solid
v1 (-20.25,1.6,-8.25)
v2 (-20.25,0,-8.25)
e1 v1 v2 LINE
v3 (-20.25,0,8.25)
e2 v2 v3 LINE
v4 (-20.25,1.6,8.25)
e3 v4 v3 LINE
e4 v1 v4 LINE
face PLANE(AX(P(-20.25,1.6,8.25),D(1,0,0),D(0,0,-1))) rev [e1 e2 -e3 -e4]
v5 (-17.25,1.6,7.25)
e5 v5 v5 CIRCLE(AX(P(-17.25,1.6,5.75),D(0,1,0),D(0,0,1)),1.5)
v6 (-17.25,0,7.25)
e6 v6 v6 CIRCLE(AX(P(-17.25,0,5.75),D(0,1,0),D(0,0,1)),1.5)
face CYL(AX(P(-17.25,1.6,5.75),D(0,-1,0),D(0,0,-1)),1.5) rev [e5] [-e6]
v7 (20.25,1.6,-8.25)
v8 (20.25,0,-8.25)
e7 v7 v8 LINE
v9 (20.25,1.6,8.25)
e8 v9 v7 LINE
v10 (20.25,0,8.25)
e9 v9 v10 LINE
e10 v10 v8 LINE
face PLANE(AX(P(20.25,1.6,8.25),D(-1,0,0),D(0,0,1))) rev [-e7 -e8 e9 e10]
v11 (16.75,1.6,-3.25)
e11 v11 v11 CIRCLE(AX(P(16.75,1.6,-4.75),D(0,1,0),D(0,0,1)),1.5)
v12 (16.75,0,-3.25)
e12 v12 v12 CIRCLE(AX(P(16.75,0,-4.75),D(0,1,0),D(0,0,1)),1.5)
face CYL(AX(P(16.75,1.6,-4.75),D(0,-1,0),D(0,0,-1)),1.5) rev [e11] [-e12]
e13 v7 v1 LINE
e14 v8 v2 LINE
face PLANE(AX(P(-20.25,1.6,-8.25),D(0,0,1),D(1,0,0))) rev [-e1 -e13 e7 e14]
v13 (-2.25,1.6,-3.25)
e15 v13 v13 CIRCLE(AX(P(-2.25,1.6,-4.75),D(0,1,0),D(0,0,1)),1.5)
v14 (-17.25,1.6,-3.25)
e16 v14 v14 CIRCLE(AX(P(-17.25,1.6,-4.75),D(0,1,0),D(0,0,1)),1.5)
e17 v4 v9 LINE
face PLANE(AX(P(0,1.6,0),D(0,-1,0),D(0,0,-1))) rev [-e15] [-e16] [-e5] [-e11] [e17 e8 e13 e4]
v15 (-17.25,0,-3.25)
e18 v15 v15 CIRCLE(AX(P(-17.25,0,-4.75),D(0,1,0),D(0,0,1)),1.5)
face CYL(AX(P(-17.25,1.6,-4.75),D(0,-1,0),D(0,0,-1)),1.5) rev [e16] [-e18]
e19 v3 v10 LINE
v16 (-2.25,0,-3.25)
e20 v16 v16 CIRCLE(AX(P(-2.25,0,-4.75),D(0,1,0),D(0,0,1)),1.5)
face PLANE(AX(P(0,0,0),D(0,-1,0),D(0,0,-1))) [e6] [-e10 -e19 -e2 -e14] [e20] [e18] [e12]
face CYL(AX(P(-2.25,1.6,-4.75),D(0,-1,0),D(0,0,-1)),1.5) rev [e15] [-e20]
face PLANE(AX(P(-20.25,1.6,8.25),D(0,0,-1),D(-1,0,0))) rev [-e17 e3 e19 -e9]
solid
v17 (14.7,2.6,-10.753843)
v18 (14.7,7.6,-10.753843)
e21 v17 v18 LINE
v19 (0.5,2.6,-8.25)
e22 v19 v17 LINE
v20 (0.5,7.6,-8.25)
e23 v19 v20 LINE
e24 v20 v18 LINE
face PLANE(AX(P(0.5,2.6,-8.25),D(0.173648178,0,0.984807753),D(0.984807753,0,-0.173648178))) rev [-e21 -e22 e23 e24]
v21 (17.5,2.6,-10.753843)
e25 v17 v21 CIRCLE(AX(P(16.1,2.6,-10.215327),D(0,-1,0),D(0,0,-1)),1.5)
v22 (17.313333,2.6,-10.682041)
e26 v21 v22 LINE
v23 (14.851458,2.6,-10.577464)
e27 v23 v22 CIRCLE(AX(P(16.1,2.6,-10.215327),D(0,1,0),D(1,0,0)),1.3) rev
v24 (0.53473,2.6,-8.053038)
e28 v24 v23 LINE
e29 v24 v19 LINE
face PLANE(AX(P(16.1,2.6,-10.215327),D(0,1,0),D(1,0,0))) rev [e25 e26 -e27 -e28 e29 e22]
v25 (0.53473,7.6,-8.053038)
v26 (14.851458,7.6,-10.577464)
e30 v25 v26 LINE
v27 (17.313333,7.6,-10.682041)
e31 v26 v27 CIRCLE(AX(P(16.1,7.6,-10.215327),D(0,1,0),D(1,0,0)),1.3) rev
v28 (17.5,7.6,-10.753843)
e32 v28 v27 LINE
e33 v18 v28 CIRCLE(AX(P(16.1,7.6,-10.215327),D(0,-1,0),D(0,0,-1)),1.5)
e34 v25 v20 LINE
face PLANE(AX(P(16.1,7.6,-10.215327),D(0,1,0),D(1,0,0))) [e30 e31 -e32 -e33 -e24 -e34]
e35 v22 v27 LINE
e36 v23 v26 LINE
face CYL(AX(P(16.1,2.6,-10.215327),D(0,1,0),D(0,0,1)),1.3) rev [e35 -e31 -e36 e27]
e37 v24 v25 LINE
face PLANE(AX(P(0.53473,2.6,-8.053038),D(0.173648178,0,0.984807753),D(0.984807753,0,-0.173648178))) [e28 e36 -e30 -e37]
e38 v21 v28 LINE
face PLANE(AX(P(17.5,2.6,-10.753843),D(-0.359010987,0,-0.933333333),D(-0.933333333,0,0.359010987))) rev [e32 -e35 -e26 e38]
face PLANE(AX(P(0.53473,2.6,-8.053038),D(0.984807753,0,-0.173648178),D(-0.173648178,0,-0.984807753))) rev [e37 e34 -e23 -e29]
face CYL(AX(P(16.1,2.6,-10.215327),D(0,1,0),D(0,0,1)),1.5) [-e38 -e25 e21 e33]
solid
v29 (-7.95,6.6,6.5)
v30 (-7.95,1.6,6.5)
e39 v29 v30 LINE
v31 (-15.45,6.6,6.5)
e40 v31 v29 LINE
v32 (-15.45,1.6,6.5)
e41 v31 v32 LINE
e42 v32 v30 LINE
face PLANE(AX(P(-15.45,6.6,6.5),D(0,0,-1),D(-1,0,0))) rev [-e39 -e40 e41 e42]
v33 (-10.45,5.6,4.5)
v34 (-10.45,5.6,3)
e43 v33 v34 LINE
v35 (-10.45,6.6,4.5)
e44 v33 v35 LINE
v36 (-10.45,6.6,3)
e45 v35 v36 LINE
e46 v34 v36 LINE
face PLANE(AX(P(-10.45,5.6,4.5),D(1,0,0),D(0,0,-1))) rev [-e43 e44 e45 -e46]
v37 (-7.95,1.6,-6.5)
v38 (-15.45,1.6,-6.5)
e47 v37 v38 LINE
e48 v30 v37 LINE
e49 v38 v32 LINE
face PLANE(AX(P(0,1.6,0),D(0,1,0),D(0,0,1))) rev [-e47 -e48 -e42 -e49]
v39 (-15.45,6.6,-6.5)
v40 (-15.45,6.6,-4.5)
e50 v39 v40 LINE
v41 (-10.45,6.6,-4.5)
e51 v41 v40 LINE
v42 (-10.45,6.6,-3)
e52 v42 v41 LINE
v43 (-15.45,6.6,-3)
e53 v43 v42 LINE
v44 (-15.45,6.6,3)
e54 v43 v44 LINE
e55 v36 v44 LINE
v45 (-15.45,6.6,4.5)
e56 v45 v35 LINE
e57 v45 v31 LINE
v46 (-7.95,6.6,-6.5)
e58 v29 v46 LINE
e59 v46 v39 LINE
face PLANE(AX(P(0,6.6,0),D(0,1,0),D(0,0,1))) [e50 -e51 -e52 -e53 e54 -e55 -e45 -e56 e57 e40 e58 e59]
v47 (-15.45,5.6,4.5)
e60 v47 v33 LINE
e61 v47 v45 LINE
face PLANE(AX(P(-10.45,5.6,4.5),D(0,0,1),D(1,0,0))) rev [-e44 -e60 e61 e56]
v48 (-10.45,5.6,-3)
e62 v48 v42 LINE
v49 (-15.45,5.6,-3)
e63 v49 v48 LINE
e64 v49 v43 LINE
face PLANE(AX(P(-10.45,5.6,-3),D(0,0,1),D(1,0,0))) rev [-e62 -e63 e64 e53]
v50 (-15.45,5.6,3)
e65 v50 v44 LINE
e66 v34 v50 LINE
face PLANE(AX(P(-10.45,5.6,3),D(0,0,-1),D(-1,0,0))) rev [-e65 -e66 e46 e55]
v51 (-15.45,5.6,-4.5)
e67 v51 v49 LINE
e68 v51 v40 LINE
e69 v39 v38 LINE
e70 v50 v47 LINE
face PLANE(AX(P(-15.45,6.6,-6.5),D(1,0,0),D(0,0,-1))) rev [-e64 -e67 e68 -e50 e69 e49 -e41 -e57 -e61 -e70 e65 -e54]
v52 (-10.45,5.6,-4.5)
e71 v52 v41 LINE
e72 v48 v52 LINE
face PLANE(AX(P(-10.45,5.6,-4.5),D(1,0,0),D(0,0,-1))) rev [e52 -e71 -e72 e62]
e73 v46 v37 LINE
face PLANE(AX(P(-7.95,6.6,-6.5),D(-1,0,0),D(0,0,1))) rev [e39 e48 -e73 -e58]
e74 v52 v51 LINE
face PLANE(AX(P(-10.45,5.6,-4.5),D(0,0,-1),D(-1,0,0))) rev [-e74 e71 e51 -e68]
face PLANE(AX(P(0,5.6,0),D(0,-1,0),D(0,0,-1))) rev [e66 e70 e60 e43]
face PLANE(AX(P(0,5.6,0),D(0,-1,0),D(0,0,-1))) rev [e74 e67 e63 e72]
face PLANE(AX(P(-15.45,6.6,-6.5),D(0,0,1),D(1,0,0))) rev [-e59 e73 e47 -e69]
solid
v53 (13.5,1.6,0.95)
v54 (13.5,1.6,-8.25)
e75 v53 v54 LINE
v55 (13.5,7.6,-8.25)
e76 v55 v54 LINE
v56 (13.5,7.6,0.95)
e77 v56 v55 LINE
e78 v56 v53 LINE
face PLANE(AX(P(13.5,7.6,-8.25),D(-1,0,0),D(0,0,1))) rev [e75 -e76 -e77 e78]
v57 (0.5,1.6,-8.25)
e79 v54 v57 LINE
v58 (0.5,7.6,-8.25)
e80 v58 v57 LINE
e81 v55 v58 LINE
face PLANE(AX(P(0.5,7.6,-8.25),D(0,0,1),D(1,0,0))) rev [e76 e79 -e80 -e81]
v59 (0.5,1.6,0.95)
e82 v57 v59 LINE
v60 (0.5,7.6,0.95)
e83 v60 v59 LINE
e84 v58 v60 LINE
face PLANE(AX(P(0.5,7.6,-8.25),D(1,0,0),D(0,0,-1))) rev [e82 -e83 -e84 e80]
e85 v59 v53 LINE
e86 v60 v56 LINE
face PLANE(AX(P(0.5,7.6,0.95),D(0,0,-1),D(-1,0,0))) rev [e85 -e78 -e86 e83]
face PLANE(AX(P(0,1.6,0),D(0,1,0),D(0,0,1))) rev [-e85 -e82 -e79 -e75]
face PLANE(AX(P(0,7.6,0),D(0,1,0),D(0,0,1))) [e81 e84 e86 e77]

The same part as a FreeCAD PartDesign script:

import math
import FreeCAD as App
import Part
import Sketcher
Q = App.Units.Quantity

doc = App.newDocument("Part")
params = doc.addObject("Spreadsheet::Sheet", "Params")
for row, (alias, value) in enumerate([
    ("sketch1_diameter", "3 mm"),
    ("sketch1_width", "40.5 mm"),
    ("sketch1_height", "16.5 mm"),
    ("pad1_length", "1.6 mm"),
    ("sketch2_width", "13 mm"),
    ("sketch2_height", "9.2 mm"),
    ("pad2_length", "6 mm"),
    ("sketch3_height", "13 mm"),
    ("sketch3_width", "7.5 mm"),
    ("pad3_length", "5 mm"),
    ("sketch4_width", "5 mm"),
    ("sketch4_height", "1.5 mm"),
    ("pocket1_length", "1 mm"),
    ("sketch5_radius", "1.3 mm"),
    ("sketch5_radius2", "1.5 mm"),
    ("pad4_length", "5 mm"),
], start=1):
    params.set(f"A{row}", alias)
    params.set(f"B{row}", "=" + value)
    params.setAlias(f"B{row}", alias)

body = doc.addObject("PartDesign::Body", "Body")

# Sketch on XZ plane
sketch1 = body.newObject("Sketcher::SketchObject", "Sketch")
sketch1.AttachmentSupport = (doc.getObject("XZ_Plane"), [""])
sketch1.MapMode = "FlatFace"
sketch1.addGeometry(Part.LineSegment(App.Vector(-20.2, -8.2, 0), App.Vector(-20.2, 8.2, 0)), False)
sketch1.addGeometry(Part.LineSegment(App.Vector(-20.2, 8.2, 0), App.Vector(20.2, 8.2, 0)), False)
sketch1.addGeometry(Part.LineSegment(App.Vector(20.2, 8.2, 0), App.Vector(20.2, -8.2, 0)), False)
sketch1.addGeometry(Part.LineSegment(App.Vector(20.2, -8.2, 0), App.Vector(-20.2, -8.2, 0)), False)
sketch1.addGeometry(Part.Circle(App.Vector(-17.2, 5.8, 0), App.Vector(0, 0, 1), 1.5), False)
sketch1.addGeometry(Part.Circle(App.Vector(-17.2, -4.8, 0), App.Vector(0, 0, 1), 1.5), False)
sketch1.addGeometry(Part.Circle(App.Vector(-2.2, -4.8, 0), App.Vector(0, 0, 1), 1.5), False)
sketch1.addGeometry(Part.Circle(App.Vector(16.8, -4.8, 0), App.Vector(0, 0, 1), 1.5), False)
sketch1.addConstraint(Sketcher.Constraint("Coincident", 0, 2, 1, 1))
sketch1.addConstraint(Sketcher.Constraint("Coincident", 1, 2, 2, 1))
sketch1.addConstraint(Sketcher.Constraint("Coincident", 2, 2, 3, 1))
sketch1.addConstraint(Sketcher.Constraint("Coincident", 3, 2, 0, 1))
sketch1.addConstraint(Sketcher.Constraint("Vertical", 0))
sketch1.addConstraint(Sketcher.Constraint("Horizontal", 1))
sketch1.addConstraint(Sketcher.Constraint("Vertical", 2))
sketch1.addConstraint(Sketcher.Constraint("Horizontal", 3))
sketch1.addConstraint(Sketcher.Constraint("Equal", 4, 5))
sketch1.addConstraint(Sketcher.Constraint("Equal", 5, 6))
sketch1.addConstraint(Sketcher.Constraint("Equal", 6, 7))
sketch1.addConstraint(Sketcher.Constraint("Symmetric", 0, 2, 2, 2, -1, 1))
sketch1.addConstraint(Sketcher.Constraint("Horizontal", 5, 3, 6, 3))
sketch1.addConstraint(Sketcher.Constraint("Horizontal", 6, 3, 7, 3))
sketch1.addConstraint(Sketcher.Constraint("Vertical", 4, 3, 5, 3))
sketch1.addConstraint(Sketcher.Constraint("Diameter", 4, Q("3 mm")))
sketch1.addConstraint(Sketcher.Constraint("DistanceX", 1, 1, 1, 2, Q("40.5 mm")))
sketch1.addConstraint(Sketcher.Constraint("DistanceY", 0, 1, 0, 2, Q("16.5 mm")))
sketch1.addConstraint(Sketcher.Constraint("DistanceX", 5, 3, 6, 3, Q("15 mm")))
sketch1.addConstraint(Sketcher.Constraint("DistanceX", 6, 3, 7, 3, Q("19 mm")))
sketch1.addConstraint(Sketcher.Constraint("DistanceX", 0, 2, 4, 3, Q("3 mm")))
sketch1.addConstraint(Sketcher.Constraint("DistanceY", 5, 3, 0, 2, Q("13 mm")))
sketch1.addConstraint(Sketcher.Constraint("DistanceY", 2, 2, 4, 3, Q("14 mm")))
sketch1.setExpression("Constraints[15]", "Params.sketch1_diameter")
sketch1.setExpression("Constraints[16]", "Params.sketch1_width")
sketch1.setExpression("Constraints[17]", "Params.sketch1_height")
pad1 = body.newObject("PartDesign::Pad", "Pad")
pad1.Profile = sketch1
pad1.setExpression("Length", "Params.pad1_length")
pad1.Reversed = True
body2 = doc.addObject("PartDesign::Body", "Body001")

# Sketch on XZ plane
sketch2 = body2.newObject("Sketcher::SketchObject", "Sketch001")
sketch2.AttachmentSupport = (doc.getObject("XZ_Plane001"), [""])
sketch2.MapMode = "FlatFace"
sketch2.AttachmentOffset = App.Placement(App.Vector(0, 0, -1.6), App.Rotation())
sketch2.addGeometry(Part.LineSegment(App.Vector(0, -8, 0), App.Vector(0, 1, 0)), False)
sketch2.addGeometry(Part.LineSegment(App.Vector(0, 1, 0), App.Vector(14, 1, 0)), False)
sketch2.addGeometry(Part.LineSegment(App.Vector(14, 1, 0), App.Vector(14, -8, 0)), False)
sketch2.addGeometry(Part.LineSegment(App.Vector(14, -8, 0), App.Vector(0, -8, 0)), False)
sketch2.addConstraint(Sketcher.Constraint("Coincident", 0, 2, 1, 1))
sketch2.addConstraint(Sketcher.Constraint("Coincident", 1, 2, 2, 1))
sketch2.addConstraint(Sketcher.Constraint("Coincident", 2, 2, 3, 1))
sketch2.addConstraint(Sketcher.Constraint("Coincident", 3, 2, 0, 1))
sketch2.addConstraint(Sketcher.Constraint("Vertical", 0))
sketch2.addConstraint(Sketcher.Constraint("Horizontal", 1))
sketch2.addConstraint(Sketcher.Constraint("Vertical", 2))
sketch2.addConstraint(Sketcher.Constraint("Horizontal", 3))
sketch2.addConstraint(Sketcher.Constraint("DistanceX", 1, 1, 1, 2, Q("13 mm")))
sketch2.addConstraint(Sketcher.Constraint("DistanceY", 0, 1, 0, 2, Q("9.2 mm")))
sketch2.addConstraint(Sketcher.Constraint("DistanceX", -1, 1, 0, 2, Q("0.5 mm")))
sketch2.addConstraint(Sketcher.Constraint("DistanceY", -1, 1, 0, 2, Q("0.95 mm")))
sketch2.setExpression("Constraints[8]", "Params.sketch2_width")
sketch2.setExpression("Constraints[9]", "Params.sketch2_height")
pad2 = body2.newObject("PartDesign::Pad", "Pad001")
pad2.Profile = sketch2
pad2.setExpression("Length", "Params.pad2_length")
pad2.Reversed = True
body3 = doc.addObject("PartDesign::Body", "Body002")

# Sketch on XZ plane
sketch3 = body3.newObject("Sketcher::SketchObject", "Sketch002")
sketch3.AttachmentSupport = (doc.getObject("XZ_Plane002"), [""])
sketch3.MapMode = "FlatFace"
sketch3.AttachmentOffset = App.Placement(App.Vector(0, 0, -1.6), App.Rotation())
sketch3.addGeometry(Part.LineSegment(App.Vector(-15, -6, 0), App.Vector(-15, 6, 0)), False)
sketch3.addGeometry(Part.LineSegment(App.Vector(-15, 6, 0), App.Vector(-8, 6, 0)), False)
sketch3.addGeometry(Part.LineSegment(App.Vector(-8, 6, 0), App.Vector(-8, -6, 0)), False)
sketch3.addGeometry(Part.LineSegment(App.Vector(-8, -6, 0), App.Vector(-15, -6, 0)), False)
sketch3.addConstraint(Sketcher.Constraint("Coincident", 0, 2, 1, 1))
sketch3.addConstraint(Sketcher.Constraint("Coincident", 1, 2, 2, 1))
sketch3.addConstraint(Sketcher.Constraint("Coincident", 2, 2, 3, 1))
sketch3.addConstraint(Sketcher.Constraint("Coincident", 3, 2, 0, 1))
sketch3.addConstraint(Sketcher.Constraint("Vertical", 0))
sketch3.addConstraint(Sketcher.Constraint("Horizontal", 1))
sketch3.addConstraint(Sketcher.Constraint("Vertical", 2))
sketch3.addConstraint(Sketcher.Constraint("Horizontal", 3))
sketch3.addConstraint(Sketcher.Constraint("DistanceY", 0, 1, 0, 2, Q("13 mm")))
sketch3.addConstraint(Sketcher.Constraint("DistanceX", 1, 1, 1, 2, Q("7.5 mm")))
sketch3.addConstraint(Sketcher.Constraint("DistanceY", -1, 1, 0, 2, Q("6.5 mm")))
sketch3.addConstraint(Sketcher.Constraint("DistanceX", 0, 2, -1, 1, Q("15.45 mm")))
sketch3.setExpression("Constraints[8]", "Params.sketch3_height")
sketch3.setExpression("Constraints[9]", "Params.sketch3_width")
pad3 = body3.newObject("PartDesign::Pad", "Pad002")
pad3.Profile = sketch3
pad3.setExpression("Length", "Params.pad3_length")
pad3.Reversed = True

# Sketch on XZ plane
sketch4 = body3.newObject("Sketcher::SketchObject", "Sketch003")
sketch4.AttachmentSupport = (doc.getObject("XZ_Plane002"), [""])
sketch4.MapMode = "FlatFace"
sketch4.AttachmentOffset = App.Placement(App.Vector(0, 0, -6.6), App.Rotation())
sketch4.addGeometry(Part.LineSegment(App.Vector(-15.4, -4.5, 0), App.Vector(-15.4, -3, 0)), False)
sketch4.addGeometry(Part.LineSegment(App.Vector(-15.4, -3, 0), App.Vector(-10.4, -3, 0)), False)
sketch4.addGeometry(Part.LineSegment(App.Vector(-10.4, -3, 0), App.Vector(-10.4, -4.5, 0)), False)
sketch4.addGeometry(Part.LineSegment(App.Vector(-10.4, -4.5, 0), App.Vector(-15.4, -4.5, 0)), False)
sketch4.addGeometry(Part.LineSegment(App.Vector(-15.4, 3, 0), App.Vector(-15.4, 4.5, 0)), False)
sketch4.addGeometry(Part.LineSegment(App.Vector(-15.4, 4.5, 0), App.Vector(-10.4, 4.5, 0)), False)
sketch4.addGeometry(Part.LineSegment(App.Vector(-10.4, 4.5, 0), App.Vector(-10.4, 3, 0)), False)
sketch4.addGeometry(Part.LineSegment(App.Vector(-10.4, 3, 0), App.Vector(-15.4, 3, 0)), False)
sketch4.addConstraint(Sketcher.Constraint("Coincident", 0, 2, 1, 1))
sketch4.addConstraint(Sketcher.Constraint("Coincident", 1, 2, 2, 1))
sketch4.addConstraint(Sketcher.Constraint("Coincident", 2, 2, 3, 1))
sketch4.addConstraint(Sketcher.Constraint("Coincident", 3, 2, 0, 1))
sketch4.addConstraint(Sketcher.Constraint("Coincident", 4, 2, 5, 1))
sketch4.addConstraint(Sketcher.Constraint("Coincident", 5, 2, 6, 1))
sketch4.addConstraint(Sketcher.Constraint("Coincident", 6, 2, 7, 1))
sketch4.addConstraint(Sketcher.Constraint("Coincident", 7, 2, 4, 1))
sketch4.addConstraint(Sketcher.Constraint("Vertical", 0))
sketch4.addConstraint(Sketcher.Constraint("Horizontal", 1))
sketch4.addConstraint(Sketcher.Constraint("Vertical", 2))
sketch4.addConstraint(Sketcher.Constraint("Horizontal", 3))
sketch4.addConstraint(Sketcher.Constraint("Vertical", 4))
sketch4.addConstraint(Sketcher.Constraint("Horizontal", 5))
sketch4.addConstraint(Sketcher.Constraint("Vertical", 6))
sketch4.addConstraint(Sketcher.Constraint("Horizontal", 7))
sketch4.addConstraint(Sketcher.Constraint("Symmetric", 3, 2, 4, 2, -1))
sketch4.addConstraint(Sketcher.Constraint("Symmetric", 1, 2, 6, 2, -1))
sketch4.addConstraint(Sketcher.Constraint("DistanceX", 1, 1, 1, 2, Q("5 mm")))
sketch4.addConstraint(Sketcher.Constraint("DistanceY", 0, 1, 0, 2, Q("1.5 mm")))
sketch4.addConstraint(Sketcher.Constraint("DistanceY", 0, 2, -1, 1, Q("3 mm")))
sketch4.addConstraint(Sketcher.Constraint("DistanceX", 0, 2, -1, 1, Q("15.45 mm")))
sketch4.setExpression("Constraints[18]", "Params.sketch4_width")
sketch4.setExpression("Constraints[19]", "Params.sketch4_height")
pocket1 = body3.newObject("PartDesign::Pocket", "Pocket")
pocket1.Profile = sketch4
pocket1.setExpression("Length", "Params.pocket1_length")
pocket1.Reversed = True
body4 = doc.addObject("PartDesign::Body", "Body003")

# Sketch on XZ plane
sketch5 = body4.newObject("Sketcher::SketchObject", "Sketch004")
sketch5.AttachmentSupport = (doc.getObject("XZ_Plane003"), [""])
sketch5.MapMode = "FlatFace"
sketch5.AttachmentOffset = App.Placement(App.Vector(0, 0, -7.6), App.Rotation())
sketch5.addGeometry(Part.LineSegment(App.Vector(14.7, -10.75, 0), App.Vector(0.5, -8.25, 0)), False)
sketch5.addGeometry(Part.LineSegment(App.Vector(0.5, -8.25, 0), App.Vector(0.53, -8.05, 0)), False)
sketch5.addGeometry(Part.LineSegment(App.Vector(0.53, -8.05, 0), App.Vector(14.85, -10.58, 0)), False)
sketch5.addGeometry(Part.ArcOfCircle(Part.Circle(App.Vector(16.1, -10.22, 0), App.Vector(0, 0, 1), 1.3), math.radians(-164), math.radians(-21)), False)
sketch5.addGeometry(Part.LineSegment(App.Vector(17.31, -10.68, 0), App.Vector(17.5, -10.75, 0)), False)
sketch5.addGeometry(Part.ArcOfCircle(Part.Circle(App.Vector(16.1, -10.22, 0), App.Vector(0, 0, 1), 1.5), math.radians(-159), math.radians(-21)), False)
sketch5.addConstraint(Sketcher.Constraint("Coincident", 0, 2, 1, 1))
sketch5.addConstraint(Sketcher.Constraint("Coincident", 1, 2, 2, 1))
sketch5.addConstraint(Sketcher.Constraint("Coincident", 2, 2, 3, 1))
sketch5.addConstraint(Sketcher.Constraint("Coincident", 3, 2, 4, 1))
sketch5.addConstraint(Sketcher.Constraint("Coincident", 4, 2, 5, 2))
sketch5.addConstraint(Sketcher.Constraint("Coincident", 5, 1, 0, 1))
sketch5.addConstraint(Sketcher.Constraint("Coincident", 5, 3, 3, 3))
sketch5.addConstraint(Sketcher.Constraint("Perpendicular", 0, 1))
sketch5.addConstraint(Sketcher.Constraint("Perpendicular", 1, 2))
sketch5.addConstraint(Sketcher.Constraint("Horizontal", 4, 2, 5, 1))
sketch5.addConstraint(Sketcher.Constraint("Equal", 1, 4))
sketch5.addConstraint(Sketcher.Constraint("Radius", 3, Q("1.3 mm")))
sketch5.addConstraint(Sketcher.Constraint("Radius", 5, Q("1.5 mm")))
sketch5.addConstraint(Sketcher.Constraint("Angle", 0, Q("170 deg")))
sketch5.addConstraint(Sketcher.Constraint("DistanceX", -1, 1, 3, 3, Q("16.1 mm")))
sketch5.addConstraint(Sketcher.Constraint("DistanceX", -1, 1, 0, 2, Q("0.5 mm")))
sketch5.addConstraint(Sketcher.Constraint("DistanceX", -1, 1, 4, 2, Q("17.5 mm")))
sketch5.addConstraint(Sketcher.Constraint("DistanceY", 0, 2, -1, 1, Q("8.25 mm")))
sketch5.addConstraint(Sketcher.Constraint("DistanceY", 3, 2, -1, 1, Q("10.682041 mm")))
sketch5.setExpression("Constraints[11]", "Params.sketch5_radius")
sketch5.setExpression("Constraints[12]", "Params.sketch5_radius2")
pad4 = body4.newObject("PartDesign::Pad", "Pad003")
pad4.Profile = sketch5
pad4.setExpression("Length", "Params.pad4_length")

doc.recompute()
